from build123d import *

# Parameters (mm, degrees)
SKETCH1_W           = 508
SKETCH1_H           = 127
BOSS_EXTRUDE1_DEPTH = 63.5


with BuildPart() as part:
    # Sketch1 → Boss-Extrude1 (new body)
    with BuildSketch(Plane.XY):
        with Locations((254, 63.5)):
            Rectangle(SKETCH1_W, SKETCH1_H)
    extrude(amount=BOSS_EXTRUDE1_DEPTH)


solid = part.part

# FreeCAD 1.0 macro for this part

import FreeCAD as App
import Part
import Sketcher

V = App.Vector
Q = App.Units.Quantity


def add_polygon(sketch, points):
    """Adds a closed chain of lines whose ends are joined by coincident constraints."""
    first, n = sketch.GeometryCount, len(points)
    for a, b in zip(points, points[1:] + points[:1]):
        sketch.addGeometry(Part.LineSegment(App.Vector(*a, 0), App.Vector(*b, 0)), False)
    for i in range(n):
        sketch.addConstraint(Sketcher.Constraint("Coincident", first + i, 2, first + (i + 1) % n, 1))

doc = App.newDocument("Part")
body = doc.addObject("PartDesign::Body", "Body")

# Sketch on XY plane
sketch1 = body.newObject("Sketcher::SketchObject", "Sketch")
sketch1.AttachmentSupport = (doc.getObject("XY_Plane"), [""])
sketch1.MapMode = "FlatFace"
add_polygon(sketch1, [(0, 127), (0, 0), (508, 0), (508, 127)])  # lines 0-3
sketch1.addConstraint([
    Sketcher.Constraint("Vertical", 0),
    Sketcher.Constraint("Horizontal", 1),
    Sketcher.Constraint("Vertical", 2),
    Sketcher.Constraint("Horizontal", 3),
    Sketcher.Constraint("Coincident", 0, 2, -1, 1),
    Sketcher.Constraint("DistanceX", 1, 1, 1, 2, Q("20 in")),
    Sketcher.Constraint("DistanceY", 0, 2, 0, 1, Q("5 in")),
])
pad1 = body.newObject("PartDesign::Pad", "Pad")
pad1.Profile = sketch1
pad1.Length = Q("2.5 in")

doc.recompute()
